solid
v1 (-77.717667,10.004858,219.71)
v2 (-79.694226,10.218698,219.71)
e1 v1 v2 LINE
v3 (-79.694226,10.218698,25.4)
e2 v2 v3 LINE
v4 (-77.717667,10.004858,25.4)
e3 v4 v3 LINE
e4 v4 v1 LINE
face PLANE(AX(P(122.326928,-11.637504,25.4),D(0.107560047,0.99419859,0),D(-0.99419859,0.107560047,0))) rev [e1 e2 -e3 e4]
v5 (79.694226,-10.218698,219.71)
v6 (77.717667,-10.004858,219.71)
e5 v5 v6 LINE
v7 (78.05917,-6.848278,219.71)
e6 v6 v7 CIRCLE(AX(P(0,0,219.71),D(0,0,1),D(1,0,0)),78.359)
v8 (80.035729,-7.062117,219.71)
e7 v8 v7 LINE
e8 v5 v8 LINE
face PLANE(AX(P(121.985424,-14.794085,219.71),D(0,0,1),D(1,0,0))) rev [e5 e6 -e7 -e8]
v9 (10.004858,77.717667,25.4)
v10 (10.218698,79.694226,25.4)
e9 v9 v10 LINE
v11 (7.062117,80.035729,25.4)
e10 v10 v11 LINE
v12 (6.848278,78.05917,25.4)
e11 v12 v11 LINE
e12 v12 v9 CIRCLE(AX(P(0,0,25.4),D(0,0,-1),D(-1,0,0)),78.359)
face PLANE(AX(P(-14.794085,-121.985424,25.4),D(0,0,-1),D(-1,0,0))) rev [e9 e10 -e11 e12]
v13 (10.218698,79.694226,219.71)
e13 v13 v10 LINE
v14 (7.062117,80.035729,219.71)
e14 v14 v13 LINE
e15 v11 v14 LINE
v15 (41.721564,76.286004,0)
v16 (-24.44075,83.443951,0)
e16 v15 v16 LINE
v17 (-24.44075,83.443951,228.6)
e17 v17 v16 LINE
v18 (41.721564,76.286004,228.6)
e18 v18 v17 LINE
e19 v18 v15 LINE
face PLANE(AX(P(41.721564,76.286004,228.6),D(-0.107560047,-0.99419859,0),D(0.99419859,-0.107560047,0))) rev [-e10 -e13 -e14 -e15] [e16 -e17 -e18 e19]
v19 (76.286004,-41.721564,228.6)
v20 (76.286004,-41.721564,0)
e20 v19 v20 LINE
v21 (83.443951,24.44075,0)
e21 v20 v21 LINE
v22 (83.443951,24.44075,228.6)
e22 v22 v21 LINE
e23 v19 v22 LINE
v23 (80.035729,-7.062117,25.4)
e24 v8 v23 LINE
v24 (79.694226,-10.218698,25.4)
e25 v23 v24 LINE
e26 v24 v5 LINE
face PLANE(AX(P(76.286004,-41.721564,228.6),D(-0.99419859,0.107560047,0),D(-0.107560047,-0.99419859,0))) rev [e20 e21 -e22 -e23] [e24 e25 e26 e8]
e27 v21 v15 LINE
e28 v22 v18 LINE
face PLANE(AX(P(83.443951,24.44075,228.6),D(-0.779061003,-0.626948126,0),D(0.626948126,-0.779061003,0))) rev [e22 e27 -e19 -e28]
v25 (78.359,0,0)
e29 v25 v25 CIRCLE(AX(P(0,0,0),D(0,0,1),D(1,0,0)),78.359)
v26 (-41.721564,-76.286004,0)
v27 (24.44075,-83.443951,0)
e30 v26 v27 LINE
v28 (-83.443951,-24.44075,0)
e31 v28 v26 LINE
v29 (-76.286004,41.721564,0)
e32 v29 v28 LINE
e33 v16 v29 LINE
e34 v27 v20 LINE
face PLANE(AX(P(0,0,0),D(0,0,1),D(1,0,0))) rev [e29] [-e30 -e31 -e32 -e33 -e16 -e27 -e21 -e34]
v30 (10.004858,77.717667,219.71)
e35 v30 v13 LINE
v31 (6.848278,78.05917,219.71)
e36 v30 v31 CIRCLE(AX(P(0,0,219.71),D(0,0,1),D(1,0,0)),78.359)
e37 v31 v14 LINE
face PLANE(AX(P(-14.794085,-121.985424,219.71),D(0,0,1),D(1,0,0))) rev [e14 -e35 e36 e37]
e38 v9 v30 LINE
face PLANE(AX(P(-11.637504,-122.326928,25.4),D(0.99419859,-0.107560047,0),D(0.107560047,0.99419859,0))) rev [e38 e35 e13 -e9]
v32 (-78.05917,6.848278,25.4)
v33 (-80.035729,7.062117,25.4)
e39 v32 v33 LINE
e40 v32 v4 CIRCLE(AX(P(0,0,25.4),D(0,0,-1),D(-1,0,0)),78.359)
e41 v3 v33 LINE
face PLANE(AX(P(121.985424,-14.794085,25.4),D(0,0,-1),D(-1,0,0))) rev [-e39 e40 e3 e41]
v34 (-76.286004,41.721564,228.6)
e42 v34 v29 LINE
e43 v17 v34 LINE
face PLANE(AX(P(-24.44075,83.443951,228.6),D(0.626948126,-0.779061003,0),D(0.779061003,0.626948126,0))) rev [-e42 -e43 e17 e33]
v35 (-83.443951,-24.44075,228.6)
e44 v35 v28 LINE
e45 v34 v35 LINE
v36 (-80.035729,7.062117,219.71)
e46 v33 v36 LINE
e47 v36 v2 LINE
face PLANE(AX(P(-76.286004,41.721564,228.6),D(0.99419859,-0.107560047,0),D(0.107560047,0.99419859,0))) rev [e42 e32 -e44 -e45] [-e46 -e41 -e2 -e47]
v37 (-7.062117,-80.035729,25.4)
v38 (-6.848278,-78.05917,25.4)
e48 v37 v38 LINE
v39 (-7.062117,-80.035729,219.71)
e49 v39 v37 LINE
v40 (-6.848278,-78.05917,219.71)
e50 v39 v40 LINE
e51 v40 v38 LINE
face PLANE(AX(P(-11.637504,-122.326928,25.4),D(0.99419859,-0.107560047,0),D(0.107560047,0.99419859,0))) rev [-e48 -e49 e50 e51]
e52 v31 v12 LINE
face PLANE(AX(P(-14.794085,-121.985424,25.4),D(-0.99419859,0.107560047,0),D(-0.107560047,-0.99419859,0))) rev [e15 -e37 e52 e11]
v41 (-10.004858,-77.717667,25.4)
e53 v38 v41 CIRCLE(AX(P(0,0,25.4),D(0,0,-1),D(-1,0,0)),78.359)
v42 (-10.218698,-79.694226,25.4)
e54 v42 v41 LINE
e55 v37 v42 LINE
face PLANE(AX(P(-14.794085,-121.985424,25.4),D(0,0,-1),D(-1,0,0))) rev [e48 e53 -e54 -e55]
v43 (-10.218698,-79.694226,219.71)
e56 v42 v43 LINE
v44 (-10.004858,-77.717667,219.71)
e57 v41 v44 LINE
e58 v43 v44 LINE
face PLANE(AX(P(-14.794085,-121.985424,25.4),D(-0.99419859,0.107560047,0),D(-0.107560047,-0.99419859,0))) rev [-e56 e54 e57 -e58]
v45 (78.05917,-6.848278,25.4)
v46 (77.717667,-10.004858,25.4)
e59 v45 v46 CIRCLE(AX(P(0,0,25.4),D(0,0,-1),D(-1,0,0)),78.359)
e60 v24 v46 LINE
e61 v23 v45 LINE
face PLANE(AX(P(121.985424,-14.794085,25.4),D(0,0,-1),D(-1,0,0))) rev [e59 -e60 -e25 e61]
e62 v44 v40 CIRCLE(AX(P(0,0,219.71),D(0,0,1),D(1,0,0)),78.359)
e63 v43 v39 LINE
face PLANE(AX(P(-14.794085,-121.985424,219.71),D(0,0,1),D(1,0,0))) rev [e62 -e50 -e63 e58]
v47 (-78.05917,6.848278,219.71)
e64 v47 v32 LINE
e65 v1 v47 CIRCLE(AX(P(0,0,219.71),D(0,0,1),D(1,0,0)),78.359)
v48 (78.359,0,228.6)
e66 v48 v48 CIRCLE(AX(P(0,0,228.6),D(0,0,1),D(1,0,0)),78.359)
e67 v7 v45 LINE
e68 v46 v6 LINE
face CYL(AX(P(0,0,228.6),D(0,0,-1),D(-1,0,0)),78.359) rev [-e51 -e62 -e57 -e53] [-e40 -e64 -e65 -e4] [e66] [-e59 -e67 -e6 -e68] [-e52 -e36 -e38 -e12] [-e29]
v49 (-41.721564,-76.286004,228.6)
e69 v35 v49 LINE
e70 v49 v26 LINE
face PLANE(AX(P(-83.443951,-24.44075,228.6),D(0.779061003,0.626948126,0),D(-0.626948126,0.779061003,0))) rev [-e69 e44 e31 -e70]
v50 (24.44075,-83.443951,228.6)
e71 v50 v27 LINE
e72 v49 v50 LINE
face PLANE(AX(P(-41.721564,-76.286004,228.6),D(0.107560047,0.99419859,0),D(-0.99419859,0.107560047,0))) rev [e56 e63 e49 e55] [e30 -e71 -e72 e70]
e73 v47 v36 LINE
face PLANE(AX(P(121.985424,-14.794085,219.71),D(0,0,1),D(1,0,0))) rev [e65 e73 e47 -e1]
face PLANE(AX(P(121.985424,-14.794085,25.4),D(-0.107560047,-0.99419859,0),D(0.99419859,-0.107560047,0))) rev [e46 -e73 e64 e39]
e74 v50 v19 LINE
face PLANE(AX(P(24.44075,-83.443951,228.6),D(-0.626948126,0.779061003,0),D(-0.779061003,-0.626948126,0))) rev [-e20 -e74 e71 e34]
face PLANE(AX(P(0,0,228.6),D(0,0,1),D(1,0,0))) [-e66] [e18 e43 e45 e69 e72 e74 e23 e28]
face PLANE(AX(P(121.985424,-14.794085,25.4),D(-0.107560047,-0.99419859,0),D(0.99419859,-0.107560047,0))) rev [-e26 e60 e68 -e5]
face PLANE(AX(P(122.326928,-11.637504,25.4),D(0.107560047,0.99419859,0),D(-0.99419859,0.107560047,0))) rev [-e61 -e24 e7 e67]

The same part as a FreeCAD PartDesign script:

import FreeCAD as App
import Part
import Sketcher
Q = App.Units.Quantity

doc = App.newDocument("Part")
body = doc.addObject("PartDesign::Body", "Body")

# Sketch on XY plane
sketch1 = body.newObject("Sketcher::SketchObject", "Sketch")
sketch1.AttachmentSupport = (doc.getObject("XY_Plane"), [""])
sketch1.MapMode = "FlatFace"
sketch1.addGeometry([
    Part.LineSegment(App.Vector(76, -42, 0), App.Vector(83, 24, 0)),  # 0
    Part.LineSegment(App.Vector(83, 24, 0), App.Vector(42, 76, 0)),  # 1
    Part.LineSegment(App.Vector(42, 76, 0), App.Vector(-24, 83, 0)),  # 2
    Part.LineSegment(App.Vector(-24, 83, 0), App.Vector(-76, 42, 0)),  # 3
    Part.LineSegment(App.Vector(-76, 42, 0), App.Vector(-83, -24, 0)),  # 4
    Part.LineSegment(App.Vector(-83, -24, 0), App.Vector(-42, -76, 0)),  # 5
    Part.LineSegment(App.Vector(-42, -76, 0), App.Vector(24, -83, 0)),  # 6
    Part.LineSegment(App.Vector(24, -83, 0), App.Vector(76, -42, 0)),  # 7
    Part.Circle(App.Vector(0, 0, 0), App.Vector(0, 0, 1), 78),  # 8
], False)
sketch1.addConstraint([
    Sketcher.Constraint("Coincident", 0, 2, 1, 1),
    Sketcher.Constraint("Coincident", 1, 2, 2, 1),
    Sketcher.Constraint("Coincident", 2, 2, 3, 1),
    Sketcher.Constraint("Coincident", 3, 2, 4, 1),
    Sketcher.Constraint("Coincident", 4, 2, 5, 1),
    Sketcher.Constraint("Coincident", 5, 2, 6, 1),
    Sketcher.Constraint("Coincident", 6, 2, 7, 1),
    Sketcher.Constraint("Coincident", 7, 2, 0, 1),
    Sketcher.Constraint("Coincident", 8, 3, -1, 1),
    Sketcher.Constraint("Symmetric", 0, 2, 4, 2, -1, 1),
    Sketcher.Constraint("Symmetric", 1, 2, 5, 2, -1, 1),
    Sketcher.Constraint("Symmetric", 2, 2, 6, 2, -1, 1),
    Sketcher.Constraint("Symmetric", 3, 2, 7, 2, -1, 1),
    Sketcher.Constraint("Perpendicular", 0, 2),
    Sketcher.Constraint("Perpendicular", 1, 3),
    Sketcher.Constraint("Equal", 0, 1),
    Sketcher.Constraint("Equal", 1, 2),
    Sketcher.Constraint("Equal", 2, 3),
    Sketcher.Constraint("Diameter", 8, Q("6.17 in")),
    Sketcher.Constraint("DistanceX", 2, 2, 0, 2, Q("107.884701 mm")),
    Sketcher.Constraint("DistanceY", 0, 2, 2, 2, Q("59.003202 mm")),
    Sketcher.Constraint("Distance", 0, Q("66.548388 mm")),
])
pad1 = body.newObject("PartDesign::Pad", "Pad")
pad1.Profile = sketch1
pad1.Length = Q("9 in")

# Sketch on an angled plane
sketch2 = body.newObject("Sketcher::SketchObject", "Sketch001")
sketch2.Placement = App.Placement(App.Vector(8.640407, 79.864977, 0), App.Rotation(App.Vector(0.99419859, -0.107560047, 0), App.Vector(0, 0, -1), App.Vector(0.107560047, 0.99419859, 0), "ZXY"))
sketch2.addGeometry([
    Part.LineSegment(App.Vector(-1.6, -25.4, 0), App.Vector(-1.6, -219.7, 0)),
    Part.LineSegment(App.Vector(-1.6, -219.7, 0), App.Vector(1.6, -219.7, 0)),
    Part.LineSegment(App.Vector(1.6, -219.7, 0), App.Vector(1.6, -25.4, 0)),
    Part.LineSegment(App.Vector(1.6, -25.4, 0), App.Vector(-1.6, -25.4, 0)),
], False)
sketch2.addConstraint([
    Sketcher.Constraint("Coincident", 0, 2, 1, 1),
    Sketcher.Constraint("Coincident", 1, 2, 2, 1),
    Sketcher.Constraint("Coincident", 2, 2, 3, 1),
    Sketcher.Constraint("Coincident", 3, 2, 0, 1),
    Sketcher.Constraint("Vertical", 0),
    Sketcher.Constraint("Horizontal", 1),
    Sketcher.Constraint("Vertical", 2),
    Sketcher.Constraint("Horizontal", 3),
    Sketcher.Constraint("DistanceY", 2, 2, -1, 1, Q("1 in")),
    Sketcher.Constraint("DistanceY", 0, 2, 0, 1, Q("7.65 in")),
    Sketcher.Constraint("DistanceX", 1, 1, 1, 2, Q("0.125 in")),
    Sketcher.Constraint("DistanceX", 0, 2, -1, 1, Q("0.0625 in")),
])
pocket1 = body.newObject("PartDesign::Pocket", "Pocket")
pocket1.Profile = sketch2
pocket1.Length = Q("8 in")

# Sketch on an angled plane
sketch3 = body.newObject("Sketcher::SketchObject", "Sketch002")
sketch3.Placement = App.Placement(App.Vector(-79.864977, 8.640407, 0), App.Rotation(App.Vector(0, 0, 1), App.Vector(0.107560047, 0.99419859, 0), App.Vector(-0.99419859, 0.107560047, 0), "ZXY"))
sketch3.addGeometry([
    Part.LineSegment(App.Vector(25.4, 1.6, 0), App.Vector(25.4, -1.6, 0)),
    Part.LineSegment(App.Vector(25.4, -1.6, 0), App.Vector(219.7, -1.6, 0)),
    Part.LineSegment(App.Vector(219.7, -1.6, 0), App.Vector(219.7, 1.6, 0)),
    Part.LineSegment(App.Vector(219.7, 1.6, 0), App.Vector(25.4, 1.6, 0)),
], False)
sketch3.addConstraint([
    Sketcher.Constraint("Coincident", 0, 2, 1, 1),
    Sketcher.Constraint("Coincident", 1, 2, 2, 1),
    Sketcher.Constraint("Coincident", 2, 2, 3, 1),
    Sketcher.Constraint("Coincident", 3, 2, 0, 1),
    Sketcher.Constraint("Vertical", 0),
    Sketcher.Constraint("Horizontal", 1),
    Sketcher.Constraint("Vertical", 2),
    Sketcher.Constraint("Horizontal", 3),
    Sketcher.Constraint("DistanceX", -1, 1, 0, 2, Q("1 in")),
    Sketcher.Constraint("DistanceX", 1, 1, 1, 2, Q("7.65 in")),
    Sketcher.Constraint("DistanceY", 0, 2, 0, 1, Q("0.125 in")),
    Sketcher.Constraint("DistanceY", 0, 2, -1, 1, Q("0.0625 in")),
])
pocket2 = body.newObject("PartDesign::Pocket", "Pocket001")
pocket2.Profile = sketch3
pocket2.Length = Q("8 in")

doc.recompute()
